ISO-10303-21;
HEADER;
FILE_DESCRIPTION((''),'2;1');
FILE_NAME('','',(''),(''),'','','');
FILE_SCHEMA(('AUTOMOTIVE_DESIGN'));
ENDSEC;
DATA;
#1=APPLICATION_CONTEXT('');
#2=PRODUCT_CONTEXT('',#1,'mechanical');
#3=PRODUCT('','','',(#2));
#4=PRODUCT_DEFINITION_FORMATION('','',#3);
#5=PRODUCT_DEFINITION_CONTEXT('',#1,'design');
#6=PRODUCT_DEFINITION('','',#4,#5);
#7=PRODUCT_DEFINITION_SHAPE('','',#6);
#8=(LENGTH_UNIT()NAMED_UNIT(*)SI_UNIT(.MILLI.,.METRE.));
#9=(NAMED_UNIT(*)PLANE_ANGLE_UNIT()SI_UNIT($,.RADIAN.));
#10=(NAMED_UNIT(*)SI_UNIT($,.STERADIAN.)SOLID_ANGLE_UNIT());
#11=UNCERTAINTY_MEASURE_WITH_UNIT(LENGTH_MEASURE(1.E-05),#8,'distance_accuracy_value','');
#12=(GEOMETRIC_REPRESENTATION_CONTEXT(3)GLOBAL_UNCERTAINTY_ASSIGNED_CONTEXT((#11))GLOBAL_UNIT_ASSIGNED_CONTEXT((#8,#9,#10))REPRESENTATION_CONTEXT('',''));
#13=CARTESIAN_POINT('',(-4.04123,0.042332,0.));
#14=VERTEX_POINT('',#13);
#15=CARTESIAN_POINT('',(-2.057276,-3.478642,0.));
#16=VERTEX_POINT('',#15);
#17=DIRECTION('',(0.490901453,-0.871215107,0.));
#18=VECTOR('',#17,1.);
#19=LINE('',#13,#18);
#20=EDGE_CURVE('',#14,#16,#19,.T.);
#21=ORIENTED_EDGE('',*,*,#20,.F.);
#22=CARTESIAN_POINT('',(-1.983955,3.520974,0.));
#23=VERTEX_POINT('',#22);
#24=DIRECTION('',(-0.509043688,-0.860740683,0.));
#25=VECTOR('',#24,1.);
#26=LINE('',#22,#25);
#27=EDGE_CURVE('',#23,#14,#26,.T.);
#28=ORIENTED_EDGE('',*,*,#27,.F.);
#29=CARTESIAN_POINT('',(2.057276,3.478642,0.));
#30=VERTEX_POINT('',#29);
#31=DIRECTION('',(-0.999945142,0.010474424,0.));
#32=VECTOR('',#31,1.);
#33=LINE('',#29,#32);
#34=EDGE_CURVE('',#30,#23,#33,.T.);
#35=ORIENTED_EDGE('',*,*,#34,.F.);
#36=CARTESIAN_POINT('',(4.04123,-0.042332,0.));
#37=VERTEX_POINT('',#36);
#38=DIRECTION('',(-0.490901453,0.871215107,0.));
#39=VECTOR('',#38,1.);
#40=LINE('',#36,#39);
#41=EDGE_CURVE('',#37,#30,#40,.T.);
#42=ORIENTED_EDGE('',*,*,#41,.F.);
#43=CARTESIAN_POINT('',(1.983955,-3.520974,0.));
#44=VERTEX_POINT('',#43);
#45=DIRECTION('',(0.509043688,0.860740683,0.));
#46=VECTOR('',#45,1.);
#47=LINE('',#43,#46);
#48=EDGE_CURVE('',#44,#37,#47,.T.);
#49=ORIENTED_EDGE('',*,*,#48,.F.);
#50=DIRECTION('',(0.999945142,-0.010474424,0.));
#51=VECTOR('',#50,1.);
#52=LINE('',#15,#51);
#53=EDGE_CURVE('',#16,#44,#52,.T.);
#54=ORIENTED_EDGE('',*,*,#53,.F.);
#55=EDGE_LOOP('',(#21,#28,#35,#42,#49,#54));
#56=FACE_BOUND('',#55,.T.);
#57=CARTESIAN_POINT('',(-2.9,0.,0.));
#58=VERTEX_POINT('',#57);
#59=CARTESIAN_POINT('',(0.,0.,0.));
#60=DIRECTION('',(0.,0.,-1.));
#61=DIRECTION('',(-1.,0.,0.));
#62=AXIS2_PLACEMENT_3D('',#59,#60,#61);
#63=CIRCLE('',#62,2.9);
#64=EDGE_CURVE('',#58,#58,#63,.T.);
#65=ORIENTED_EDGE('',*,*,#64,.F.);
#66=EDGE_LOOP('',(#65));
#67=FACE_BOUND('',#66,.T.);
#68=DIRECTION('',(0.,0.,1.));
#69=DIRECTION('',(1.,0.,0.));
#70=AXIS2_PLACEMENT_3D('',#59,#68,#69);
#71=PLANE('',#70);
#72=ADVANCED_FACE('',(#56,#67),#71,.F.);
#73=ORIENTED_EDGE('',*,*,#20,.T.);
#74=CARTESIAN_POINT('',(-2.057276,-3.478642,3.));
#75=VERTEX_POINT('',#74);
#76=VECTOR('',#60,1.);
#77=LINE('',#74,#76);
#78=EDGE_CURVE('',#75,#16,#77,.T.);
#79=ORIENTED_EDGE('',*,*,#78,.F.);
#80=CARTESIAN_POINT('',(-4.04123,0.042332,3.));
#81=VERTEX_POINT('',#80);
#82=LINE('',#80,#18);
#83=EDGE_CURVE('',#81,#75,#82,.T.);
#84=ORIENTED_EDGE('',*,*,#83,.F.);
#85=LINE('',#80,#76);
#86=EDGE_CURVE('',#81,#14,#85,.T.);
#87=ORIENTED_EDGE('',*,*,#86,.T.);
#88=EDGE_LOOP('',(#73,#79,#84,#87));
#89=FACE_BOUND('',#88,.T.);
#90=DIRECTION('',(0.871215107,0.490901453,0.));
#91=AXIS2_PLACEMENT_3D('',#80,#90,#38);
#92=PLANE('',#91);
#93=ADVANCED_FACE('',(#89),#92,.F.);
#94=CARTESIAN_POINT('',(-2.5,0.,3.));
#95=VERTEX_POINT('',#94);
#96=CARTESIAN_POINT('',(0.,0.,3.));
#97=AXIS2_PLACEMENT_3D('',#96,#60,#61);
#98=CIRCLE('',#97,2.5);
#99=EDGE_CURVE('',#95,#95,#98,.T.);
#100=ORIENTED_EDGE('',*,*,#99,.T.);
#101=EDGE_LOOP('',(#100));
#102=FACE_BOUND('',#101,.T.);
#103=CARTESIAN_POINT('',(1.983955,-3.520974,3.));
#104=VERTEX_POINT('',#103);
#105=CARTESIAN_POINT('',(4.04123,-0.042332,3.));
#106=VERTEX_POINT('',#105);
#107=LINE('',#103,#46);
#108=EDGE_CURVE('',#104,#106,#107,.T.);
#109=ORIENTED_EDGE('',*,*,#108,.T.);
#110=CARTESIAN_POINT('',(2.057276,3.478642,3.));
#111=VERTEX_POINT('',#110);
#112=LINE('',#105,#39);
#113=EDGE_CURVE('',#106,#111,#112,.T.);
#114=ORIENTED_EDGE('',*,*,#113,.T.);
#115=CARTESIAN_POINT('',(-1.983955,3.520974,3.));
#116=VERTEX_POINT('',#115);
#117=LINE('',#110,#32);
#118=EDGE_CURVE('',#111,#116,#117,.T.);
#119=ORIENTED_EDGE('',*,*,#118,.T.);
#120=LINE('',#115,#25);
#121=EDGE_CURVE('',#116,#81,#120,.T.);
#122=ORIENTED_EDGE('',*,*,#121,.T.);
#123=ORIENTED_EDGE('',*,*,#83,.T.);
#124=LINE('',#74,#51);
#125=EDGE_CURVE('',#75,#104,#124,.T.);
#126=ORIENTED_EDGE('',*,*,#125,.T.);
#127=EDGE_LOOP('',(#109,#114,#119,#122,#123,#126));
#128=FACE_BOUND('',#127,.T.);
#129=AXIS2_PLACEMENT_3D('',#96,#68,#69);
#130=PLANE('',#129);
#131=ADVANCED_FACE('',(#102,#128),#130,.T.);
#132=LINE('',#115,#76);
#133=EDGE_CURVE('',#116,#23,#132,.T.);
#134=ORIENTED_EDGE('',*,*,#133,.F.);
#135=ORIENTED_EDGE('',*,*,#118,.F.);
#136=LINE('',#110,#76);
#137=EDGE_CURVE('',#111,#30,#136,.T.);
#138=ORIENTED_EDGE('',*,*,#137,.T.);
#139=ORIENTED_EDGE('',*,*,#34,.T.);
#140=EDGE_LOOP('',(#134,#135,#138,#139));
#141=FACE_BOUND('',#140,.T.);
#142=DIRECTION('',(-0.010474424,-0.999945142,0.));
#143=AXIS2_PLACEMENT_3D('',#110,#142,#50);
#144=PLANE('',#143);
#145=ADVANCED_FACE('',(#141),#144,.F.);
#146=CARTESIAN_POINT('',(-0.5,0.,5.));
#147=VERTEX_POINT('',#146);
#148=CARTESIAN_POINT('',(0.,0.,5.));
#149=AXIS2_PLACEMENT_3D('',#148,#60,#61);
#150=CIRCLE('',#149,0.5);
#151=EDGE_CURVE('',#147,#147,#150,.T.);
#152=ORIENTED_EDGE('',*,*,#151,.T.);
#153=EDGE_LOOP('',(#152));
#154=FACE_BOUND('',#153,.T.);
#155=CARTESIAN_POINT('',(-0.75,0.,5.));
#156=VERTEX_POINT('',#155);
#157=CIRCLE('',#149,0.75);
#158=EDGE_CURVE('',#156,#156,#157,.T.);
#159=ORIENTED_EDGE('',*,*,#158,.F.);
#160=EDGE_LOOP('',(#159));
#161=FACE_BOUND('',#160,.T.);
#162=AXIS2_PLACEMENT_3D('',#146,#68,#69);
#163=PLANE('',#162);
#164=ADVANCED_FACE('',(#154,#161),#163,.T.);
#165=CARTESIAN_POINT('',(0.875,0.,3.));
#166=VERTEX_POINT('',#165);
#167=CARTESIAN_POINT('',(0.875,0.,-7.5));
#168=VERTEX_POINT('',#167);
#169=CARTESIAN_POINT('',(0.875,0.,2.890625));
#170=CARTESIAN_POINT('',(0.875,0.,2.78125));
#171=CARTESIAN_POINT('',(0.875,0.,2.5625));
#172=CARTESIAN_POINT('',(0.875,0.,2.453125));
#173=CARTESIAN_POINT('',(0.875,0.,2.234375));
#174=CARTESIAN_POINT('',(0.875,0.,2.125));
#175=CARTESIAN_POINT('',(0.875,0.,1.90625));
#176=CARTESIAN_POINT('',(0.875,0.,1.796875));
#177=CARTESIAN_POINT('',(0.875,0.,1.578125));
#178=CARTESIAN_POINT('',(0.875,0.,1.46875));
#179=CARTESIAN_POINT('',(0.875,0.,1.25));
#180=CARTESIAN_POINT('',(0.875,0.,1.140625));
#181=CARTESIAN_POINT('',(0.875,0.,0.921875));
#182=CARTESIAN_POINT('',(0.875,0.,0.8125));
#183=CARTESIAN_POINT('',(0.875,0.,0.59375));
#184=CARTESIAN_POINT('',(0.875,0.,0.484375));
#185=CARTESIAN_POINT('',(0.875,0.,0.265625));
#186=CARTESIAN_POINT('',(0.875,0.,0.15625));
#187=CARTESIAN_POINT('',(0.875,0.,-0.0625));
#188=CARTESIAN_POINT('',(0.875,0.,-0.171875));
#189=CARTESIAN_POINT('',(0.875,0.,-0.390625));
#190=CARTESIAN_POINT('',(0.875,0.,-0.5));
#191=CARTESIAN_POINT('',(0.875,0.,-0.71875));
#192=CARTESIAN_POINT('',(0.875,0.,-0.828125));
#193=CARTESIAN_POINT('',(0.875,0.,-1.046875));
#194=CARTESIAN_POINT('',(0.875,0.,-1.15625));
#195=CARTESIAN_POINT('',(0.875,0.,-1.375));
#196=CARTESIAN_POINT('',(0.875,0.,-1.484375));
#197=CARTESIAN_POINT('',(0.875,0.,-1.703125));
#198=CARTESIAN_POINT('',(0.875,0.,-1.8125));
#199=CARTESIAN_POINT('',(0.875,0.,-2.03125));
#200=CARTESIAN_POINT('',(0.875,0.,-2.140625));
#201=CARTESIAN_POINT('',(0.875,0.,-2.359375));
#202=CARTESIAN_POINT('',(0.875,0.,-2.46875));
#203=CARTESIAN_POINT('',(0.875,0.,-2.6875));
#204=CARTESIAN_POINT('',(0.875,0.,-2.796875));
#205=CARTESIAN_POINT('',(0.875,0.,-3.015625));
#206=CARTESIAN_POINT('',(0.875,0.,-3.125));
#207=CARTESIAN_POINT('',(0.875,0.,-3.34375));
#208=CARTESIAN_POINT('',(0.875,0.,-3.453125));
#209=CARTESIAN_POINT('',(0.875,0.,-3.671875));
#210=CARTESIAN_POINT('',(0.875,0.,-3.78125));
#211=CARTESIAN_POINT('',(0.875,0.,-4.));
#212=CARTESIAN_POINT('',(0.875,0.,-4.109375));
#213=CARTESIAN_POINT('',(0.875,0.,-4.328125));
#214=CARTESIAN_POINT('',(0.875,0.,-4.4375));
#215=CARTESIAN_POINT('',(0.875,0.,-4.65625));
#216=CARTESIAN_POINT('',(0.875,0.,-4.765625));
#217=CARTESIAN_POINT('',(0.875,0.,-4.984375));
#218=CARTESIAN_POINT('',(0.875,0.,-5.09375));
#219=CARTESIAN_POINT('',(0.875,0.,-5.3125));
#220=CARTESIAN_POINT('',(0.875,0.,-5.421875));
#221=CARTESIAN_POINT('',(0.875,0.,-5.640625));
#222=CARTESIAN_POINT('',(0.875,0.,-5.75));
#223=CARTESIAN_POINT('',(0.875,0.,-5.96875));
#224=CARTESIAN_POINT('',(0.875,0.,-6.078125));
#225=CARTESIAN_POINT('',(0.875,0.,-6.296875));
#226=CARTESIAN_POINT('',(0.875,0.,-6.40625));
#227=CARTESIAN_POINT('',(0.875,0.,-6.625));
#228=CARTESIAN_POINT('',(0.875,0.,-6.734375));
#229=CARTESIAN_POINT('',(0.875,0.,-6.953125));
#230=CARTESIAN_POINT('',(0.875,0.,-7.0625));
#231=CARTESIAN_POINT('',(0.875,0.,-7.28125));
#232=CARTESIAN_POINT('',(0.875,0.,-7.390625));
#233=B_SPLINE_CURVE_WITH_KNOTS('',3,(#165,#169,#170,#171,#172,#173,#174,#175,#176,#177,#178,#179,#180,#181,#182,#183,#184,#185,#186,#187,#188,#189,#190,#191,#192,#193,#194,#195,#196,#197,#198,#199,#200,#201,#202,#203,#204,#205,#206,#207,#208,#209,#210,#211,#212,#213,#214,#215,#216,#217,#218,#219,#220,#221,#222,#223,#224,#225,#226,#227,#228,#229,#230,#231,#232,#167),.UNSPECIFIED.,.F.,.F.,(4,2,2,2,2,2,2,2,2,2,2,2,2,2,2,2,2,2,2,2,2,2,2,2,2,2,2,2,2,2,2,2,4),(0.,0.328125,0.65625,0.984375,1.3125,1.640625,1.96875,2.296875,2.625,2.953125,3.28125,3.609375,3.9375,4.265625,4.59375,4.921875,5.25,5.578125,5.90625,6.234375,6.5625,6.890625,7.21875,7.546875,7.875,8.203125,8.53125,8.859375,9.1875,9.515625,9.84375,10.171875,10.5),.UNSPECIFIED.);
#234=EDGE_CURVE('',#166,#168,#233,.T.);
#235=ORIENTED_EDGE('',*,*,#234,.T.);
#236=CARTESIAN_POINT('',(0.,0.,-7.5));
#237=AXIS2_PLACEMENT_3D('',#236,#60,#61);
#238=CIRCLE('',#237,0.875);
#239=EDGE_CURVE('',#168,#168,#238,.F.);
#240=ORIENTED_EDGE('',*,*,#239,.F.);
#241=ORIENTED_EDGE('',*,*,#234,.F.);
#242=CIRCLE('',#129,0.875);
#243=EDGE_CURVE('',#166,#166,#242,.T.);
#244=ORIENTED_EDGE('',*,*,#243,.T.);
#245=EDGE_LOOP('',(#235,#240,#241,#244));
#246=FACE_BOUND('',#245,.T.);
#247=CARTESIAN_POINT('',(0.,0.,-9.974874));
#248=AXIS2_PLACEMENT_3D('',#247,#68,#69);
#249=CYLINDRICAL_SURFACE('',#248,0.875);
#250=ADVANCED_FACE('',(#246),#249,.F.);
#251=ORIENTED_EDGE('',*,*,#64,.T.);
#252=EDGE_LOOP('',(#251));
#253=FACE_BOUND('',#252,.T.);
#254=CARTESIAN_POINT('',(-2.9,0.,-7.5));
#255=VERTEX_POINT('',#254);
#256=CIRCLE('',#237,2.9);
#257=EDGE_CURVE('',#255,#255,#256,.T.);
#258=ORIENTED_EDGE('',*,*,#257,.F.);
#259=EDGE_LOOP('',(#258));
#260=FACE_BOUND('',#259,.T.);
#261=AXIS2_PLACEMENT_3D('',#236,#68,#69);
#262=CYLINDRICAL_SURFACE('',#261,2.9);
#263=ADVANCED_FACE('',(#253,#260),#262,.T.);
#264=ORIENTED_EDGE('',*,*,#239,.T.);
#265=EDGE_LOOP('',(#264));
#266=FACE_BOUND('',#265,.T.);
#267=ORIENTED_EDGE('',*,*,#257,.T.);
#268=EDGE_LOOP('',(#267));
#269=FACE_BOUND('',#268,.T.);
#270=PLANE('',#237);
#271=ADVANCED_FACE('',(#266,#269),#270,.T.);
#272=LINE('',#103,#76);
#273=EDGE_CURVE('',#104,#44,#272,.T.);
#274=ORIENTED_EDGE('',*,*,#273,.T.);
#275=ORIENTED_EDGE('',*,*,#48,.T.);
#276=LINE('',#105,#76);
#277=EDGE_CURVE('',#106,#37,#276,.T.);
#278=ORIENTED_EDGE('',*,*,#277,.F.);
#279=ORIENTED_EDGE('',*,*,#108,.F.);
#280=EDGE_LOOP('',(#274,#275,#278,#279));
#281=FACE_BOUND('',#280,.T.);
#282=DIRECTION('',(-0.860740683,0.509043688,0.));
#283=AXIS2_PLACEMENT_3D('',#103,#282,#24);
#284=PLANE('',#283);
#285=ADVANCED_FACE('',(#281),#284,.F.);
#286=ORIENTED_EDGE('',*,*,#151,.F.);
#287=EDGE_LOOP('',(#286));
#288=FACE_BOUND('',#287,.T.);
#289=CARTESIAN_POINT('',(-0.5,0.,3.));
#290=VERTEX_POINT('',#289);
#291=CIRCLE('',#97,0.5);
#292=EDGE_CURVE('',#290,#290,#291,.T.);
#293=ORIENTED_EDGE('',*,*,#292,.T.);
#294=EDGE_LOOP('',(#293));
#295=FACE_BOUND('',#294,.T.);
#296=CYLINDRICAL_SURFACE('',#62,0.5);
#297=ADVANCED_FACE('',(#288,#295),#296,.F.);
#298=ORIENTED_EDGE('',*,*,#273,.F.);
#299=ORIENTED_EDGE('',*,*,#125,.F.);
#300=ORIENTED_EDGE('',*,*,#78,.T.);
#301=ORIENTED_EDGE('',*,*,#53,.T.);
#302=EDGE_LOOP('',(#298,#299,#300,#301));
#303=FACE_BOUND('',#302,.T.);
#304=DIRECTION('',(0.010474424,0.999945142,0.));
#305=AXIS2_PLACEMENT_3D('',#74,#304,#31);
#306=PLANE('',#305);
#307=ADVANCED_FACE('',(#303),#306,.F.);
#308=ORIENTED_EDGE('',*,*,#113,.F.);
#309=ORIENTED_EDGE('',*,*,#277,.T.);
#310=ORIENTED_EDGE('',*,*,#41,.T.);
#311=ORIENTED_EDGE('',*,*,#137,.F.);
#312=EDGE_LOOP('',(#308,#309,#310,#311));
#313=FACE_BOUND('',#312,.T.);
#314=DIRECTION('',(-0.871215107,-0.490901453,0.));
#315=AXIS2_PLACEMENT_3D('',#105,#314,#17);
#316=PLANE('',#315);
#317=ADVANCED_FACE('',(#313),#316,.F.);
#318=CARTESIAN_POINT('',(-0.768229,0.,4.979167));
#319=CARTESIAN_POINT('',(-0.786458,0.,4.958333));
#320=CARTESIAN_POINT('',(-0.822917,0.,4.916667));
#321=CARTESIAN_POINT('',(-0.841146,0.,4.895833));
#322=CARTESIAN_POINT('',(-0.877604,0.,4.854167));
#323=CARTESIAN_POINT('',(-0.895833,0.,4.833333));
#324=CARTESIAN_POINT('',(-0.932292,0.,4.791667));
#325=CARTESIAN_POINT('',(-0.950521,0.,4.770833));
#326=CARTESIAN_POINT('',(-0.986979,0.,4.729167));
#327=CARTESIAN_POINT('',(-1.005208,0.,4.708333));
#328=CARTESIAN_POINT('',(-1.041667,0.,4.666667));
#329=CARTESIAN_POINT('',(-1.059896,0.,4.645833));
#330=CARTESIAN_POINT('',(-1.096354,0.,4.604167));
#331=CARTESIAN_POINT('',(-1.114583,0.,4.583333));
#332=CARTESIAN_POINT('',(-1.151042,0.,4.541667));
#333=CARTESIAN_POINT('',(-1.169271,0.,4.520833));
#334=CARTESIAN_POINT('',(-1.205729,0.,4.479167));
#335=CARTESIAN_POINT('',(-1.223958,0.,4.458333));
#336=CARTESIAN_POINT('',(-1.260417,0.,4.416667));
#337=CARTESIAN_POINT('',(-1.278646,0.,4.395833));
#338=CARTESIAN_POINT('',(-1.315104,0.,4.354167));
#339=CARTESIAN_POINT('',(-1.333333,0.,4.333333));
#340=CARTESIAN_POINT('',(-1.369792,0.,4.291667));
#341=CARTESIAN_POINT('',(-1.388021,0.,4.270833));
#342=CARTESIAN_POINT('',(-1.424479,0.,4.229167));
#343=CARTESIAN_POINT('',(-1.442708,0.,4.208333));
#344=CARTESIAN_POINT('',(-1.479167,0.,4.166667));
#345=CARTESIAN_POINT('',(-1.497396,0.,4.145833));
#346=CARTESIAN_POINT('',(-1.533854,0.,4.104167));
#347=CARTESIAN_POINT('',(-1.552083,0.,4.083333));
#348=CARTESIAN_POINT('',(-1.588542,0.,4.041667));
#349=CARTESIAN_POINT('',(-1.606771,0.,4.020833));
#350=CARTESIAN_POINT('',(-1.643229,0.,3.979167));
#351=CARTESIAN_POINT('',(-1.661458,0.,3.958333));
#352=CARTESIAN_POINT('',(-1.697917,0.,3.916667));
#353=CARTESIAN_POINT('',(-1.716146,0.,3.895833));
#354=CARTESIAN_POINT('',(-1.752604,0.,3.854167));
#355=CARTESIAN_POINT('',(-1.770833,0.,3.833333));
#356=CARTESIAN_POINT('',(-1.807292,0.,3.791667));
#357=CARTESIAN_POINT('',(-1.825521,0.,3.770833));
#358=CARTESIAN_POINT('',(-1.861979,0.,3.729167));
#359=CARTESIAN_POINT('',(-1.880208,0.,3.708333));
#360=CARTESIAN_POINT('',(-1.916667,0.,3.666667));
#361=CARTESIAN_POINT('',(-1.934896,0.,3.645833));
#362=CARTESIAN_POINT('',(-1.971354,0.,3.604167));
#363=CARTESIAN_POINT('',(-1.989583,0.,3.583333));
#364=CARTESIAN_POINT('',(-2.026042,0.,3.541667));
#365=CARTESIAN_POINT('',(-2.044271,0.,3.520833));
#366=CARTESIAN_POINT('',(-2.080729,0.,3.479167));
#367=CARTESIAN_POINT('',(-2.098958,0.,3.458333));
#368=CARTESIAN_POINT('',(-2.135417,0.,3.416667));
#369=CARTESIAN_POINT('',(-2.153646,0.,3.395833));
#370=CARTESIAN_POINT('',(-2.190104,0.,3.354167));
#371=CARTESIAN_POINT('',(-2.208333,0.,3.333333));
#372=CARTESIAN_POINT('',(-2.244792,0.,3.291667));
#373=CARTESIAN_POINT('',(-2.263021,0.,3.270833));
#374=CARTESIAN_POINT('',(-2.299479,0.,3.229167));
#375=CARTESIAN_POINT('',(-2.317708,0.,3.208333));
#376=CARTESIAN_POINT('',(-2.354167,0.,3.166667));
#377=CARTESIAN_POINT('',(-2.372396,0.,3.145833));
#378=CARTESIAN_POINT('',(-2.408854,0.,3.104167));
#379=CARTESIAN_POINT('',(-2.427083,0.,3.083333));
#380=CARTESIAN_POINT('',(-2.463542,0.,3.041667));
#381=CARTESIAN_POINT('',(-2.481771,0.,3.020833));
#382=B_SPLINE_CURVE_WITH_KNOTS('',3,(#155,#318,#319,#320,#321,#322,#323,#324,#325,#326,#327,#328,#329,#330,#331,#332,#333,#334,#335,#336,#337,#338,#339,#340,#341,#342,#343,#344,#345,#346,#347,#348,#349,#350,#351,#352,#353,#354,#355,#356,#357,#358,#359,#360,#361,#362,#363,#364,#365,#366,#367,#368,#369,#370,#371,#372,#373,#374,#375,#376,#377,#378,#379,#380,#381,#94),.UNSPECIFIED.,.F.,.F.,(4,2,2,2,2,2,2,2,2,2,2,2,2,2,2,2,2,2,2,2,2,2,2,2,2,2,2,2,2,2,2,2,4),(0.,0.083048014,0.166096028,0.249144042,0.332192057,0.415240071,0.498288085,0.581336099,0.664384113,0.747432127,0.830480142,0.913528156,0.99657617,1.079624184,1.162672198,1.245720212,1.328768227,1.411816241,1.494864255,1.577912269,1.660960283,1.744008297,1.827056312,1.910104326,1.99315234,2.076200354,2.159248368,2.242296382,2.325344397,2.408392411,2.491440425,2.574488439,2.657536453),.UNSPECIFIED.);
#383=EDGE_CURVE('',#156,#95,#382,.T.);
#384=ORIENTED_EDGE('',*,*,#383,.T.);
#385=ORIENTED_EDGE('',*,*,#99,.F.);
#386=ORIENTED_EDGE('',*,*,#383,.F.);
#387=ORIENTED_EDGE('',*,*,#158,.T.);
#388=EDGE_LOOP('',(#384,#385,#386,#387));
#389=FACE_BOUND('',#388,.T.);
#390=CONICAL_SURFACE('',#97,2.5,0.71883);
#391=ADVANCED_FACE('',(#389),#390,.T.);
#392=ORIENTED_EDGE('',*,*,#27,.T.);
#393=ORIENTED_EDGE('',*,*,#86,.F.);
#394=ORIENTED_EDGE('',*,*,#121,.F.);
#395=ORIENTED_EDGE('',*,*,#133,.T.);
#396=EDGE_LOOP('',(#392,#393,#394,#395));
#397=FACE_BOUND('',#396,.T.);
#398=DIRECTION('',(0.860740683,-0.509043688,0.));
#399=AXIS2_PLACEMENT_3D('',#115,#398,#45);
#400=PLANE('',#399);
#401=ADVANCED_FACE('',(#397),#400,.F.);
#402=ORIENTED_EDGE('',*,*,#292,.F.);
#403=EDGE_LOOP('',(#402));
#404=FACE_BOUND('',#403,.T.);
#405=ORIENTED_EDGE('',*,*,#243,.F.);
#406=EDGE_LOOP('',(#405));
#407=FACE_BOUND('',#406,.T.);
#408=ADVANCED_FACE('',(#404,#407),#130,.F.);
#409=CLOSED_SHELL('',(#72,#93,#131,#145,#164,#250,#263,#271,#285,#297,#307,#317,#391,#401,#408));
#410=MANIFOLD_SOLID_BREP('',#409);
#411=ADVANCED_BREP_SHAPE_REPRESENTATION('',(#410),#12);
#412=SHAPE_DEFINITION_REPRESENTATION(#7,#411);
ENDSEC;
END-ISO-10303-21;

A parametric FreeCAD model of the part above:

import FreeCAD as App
import Part
import Sketcher

V = App.Vector
Q = App.Units.Quantity


def add_polygon(sketch, points):
    """Adds a closed chain of lines whose ends are joined by coincident constraints."""
    first, n = sketch.GeometryCount, len(points)
    for a, b in zip(points, points[1:] + points[:1]):
        sketch.addGeometry(Part.LineSegment(App.Vector(*a, 0), App.Vector(*b, 0)), False)
    for i in range(n):
        sketch.addConstraint(Sketcher.Constraint("Coincident", first + i, 2, first + (i + 1) % n, 1))

doc = App.newDocument("Part")
body = doc.addObject("PartDesign::Body", "Body")

sketch1 = body.newObject("Sketcher::SketchObject", "Sketch")
sketch1.AttachmentSupport = (doc.getObject("XY_Plane"), [""])
sketch1.MapMode = "FlatFace"
add_polygon(sketch1, [(-2.1, -3.5), (2, -3.5), (4, 0), (2.1, 3.5), (-2, 3.5), (-4, 0)])
sketch1.addConstraint([
    Sketcher.Constraint("Symmetric", 0, 2, 3, 2, -1, 1),
    Sketcher.Constraint("Symmetric", 1, 2, 4, 2, -1, 1),
    Sketcher.Constraint("Symmetric", 2, 2, 5, 2, -1, 1),
    Sketcher.Constraint("Equal", 0, 1),
    Sketcher.Constraint("Equal", 1, 2),
    Sketcher.Constraint("Distance", 0, Q("4.041452 mm")),
    Sketcher.Constraint("DistanceX", -1, 1, 1, 2, Q("4.04123 mm")),
    Sketcher.Constraint("DistanceY", 1, 2, -1, 1, Q("0.042332 mm")),
    Sketcher.Constraint("DistanceX", 0, 2, 2, 2, Q("0.073321 mm")),
])
pad1 = body.newObject("PartDesign::Pad", "Pad")
pad1.Profile = sketch1
pad1.Length = 3

sketch2 = body.newObject("Sketcher::SketchObject", "Sketch001")
sketch2.AttachmentSupport = (doc.getObject("XZ_Plane"), [""])
sketch2.MapMode = "FlatFace"
add_polygon(sketch2, [(-0.75, 5), (-0.5, 5), (-0.5, 3), (-2.5, 3)])
sketch2.addConstraint([
    Sketcher.Constraint("Horizontal", 0),
    Sketcher.Constraint("Vertical", 1),
    Sketcher.Constraint("Horizontal", 2),
    Sketcher.Constraint("Equal", 2, 1),
    Sketcher.Constraint("DistanceX", 2, 2, 2, 1, Q("2 mm")),
    Sketcher.Constraint("DistanceY", -1, 1, 0, 2, Q("5 mm")),
    Sketcher.Constraint("DistanceX", 0, 1, 0, 2, Q("0.25 mm")),
    Sketcher.Constraint("DistanceX", 0, 2, -1, 1, Q("0.5 mm")),
])
revolution = body.newObject("PartDesign::Revolution", "Revolution")
revolution.Profile = sketch2
revolution.ReferenceAxis = (sketch2, ["V_Axis"])
revolution.Angle = 360

sketch3 = body.newObject("Sketcher::SketchObject", "Sketch002")
sketch3.AttachmentSupport = (doc.getObject("XY_Plane"), [""])
sketch3.MapMode = "FlatFace"
sketch3.addGeometry(Part.Circle(V(0, 0, 0), V(0, 0, 1), 2.9), False)
sketch3.addConstraint([
    Sketcher.Constraint("Coincident", 0, 3, -1, 1),
    Sketcher.Constraint("Diameter", 0, Q("5.8 mm")),
])
pad2 = body.newObject("PartDesign::Pad", "Pad001")
pad2.Profile = sketch3
pad2.Length = 7.5
pad2.Reversed = True

sketch4 = body.newObject("Sketcher::SketchObject", "Sketch003")
sketch4.AttachmentSupport = (doc.getObject("XY_Plane"), [""])
sketch4.MapMode = "FlatFace"
sketch4.AttachmentOffset = App.Placement(V(0, 0, 3), App.Rotation())
sketch4.addGeometry(Part.Circle(V(0, 0, 0), V(0, 0, 1), 0.9), False)
sketch4.addConstraint([
    Sketcher.Constraint("Coincident", 0, 3, -1, 1),
    Sketcher.Constraint("Diameter", 0, Q("1.75 mm")),
])
pocket1 = body.newObject("PartDesign::Pocket", "Pocket")
pocket1.Profile = sketch4
pocket1.Length = 10.5

doc.recompute()
